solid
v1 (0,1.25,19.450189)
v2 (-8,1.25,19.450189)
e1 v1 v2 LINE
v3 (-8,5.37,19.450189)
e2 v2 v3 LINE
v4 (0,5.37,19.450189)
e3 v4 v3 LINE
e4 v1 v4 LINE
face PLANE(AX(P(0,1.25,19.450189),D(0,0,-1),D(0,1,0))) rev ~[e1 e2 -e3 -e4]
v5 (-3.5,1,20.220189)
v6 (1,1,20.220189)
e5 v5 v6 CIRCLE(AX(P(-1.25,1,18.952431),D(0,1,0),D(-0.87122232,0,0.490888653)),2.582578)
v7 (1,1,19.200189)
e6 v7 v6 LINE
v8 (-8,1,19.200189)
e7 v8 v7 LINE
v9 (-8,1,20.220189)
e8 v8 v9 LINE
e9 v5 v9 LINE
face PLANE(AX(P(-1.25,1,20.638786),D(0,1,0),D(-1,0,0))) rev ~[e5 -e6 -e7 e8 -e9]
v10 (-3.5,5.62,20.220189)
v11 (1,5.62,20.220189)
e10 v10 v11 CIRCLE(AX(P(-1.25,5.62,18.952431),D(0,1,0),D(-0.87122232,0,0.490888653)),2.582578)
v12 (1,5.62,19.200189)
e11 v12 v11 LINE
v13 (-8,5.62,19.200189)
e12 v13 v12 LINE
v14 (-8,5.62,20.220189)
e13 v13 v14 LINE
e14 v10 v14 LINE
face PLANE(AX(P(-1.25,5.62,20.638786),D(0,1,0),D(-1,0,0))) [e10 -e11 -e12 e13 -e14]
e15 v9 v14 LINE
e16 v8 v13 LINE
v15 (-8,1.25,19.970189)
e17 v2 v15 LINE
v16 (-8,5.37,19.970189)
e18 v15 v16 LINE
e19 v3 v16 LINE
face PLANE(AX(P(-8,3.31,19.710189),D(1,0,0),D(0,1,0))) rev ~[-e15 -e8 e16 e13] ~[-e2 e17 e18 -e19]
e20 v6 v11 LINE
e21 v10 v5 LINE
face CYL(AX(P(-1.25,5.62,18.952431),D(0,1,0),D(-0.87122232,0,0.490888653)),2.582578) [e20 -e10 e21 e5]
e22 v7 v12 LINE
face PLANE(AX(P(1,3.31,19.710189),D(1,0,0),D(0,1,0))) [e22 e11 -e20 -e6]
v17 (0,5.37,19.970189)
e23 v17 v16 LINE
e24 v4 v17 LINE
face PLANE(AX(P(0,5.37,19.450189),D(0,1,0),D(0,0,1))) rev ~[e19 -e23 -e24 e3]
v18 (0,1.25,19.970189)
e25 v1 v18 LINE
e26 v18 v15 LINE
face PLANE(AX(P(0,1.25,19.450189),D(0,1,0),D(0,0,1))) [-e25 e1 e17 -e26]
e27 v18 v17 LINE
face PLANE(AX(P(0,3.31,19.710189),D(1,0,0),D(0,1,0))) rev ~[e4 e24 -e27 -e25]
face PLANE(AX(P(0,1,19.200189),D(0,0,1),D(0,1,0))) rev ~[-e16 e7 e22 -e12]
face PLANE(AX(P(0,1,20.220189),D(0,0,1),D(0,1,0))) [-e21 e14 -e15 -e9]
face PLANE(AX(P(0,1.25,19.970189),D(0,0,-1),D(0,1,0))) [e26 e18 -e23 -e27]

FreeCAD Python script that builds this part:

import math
import FreeCAD as App
import Part
import Sketcher

V = App.Vector

doc = App.newDocument("Part")
body = doc.addObject("PartDesign::Body", "Body")

sketch1 = doc.addObject("Sketcher::SketchObject", "Sketch")
body.addObject(sketch1)
sketch1.AttachmentSupport = (doc.YZ_Plane, [""])
sketch1.MapMode = "FlatFace"
sketch1.addGeometry([
    Part.LineSegment(V(1, 20.2, 0), V(1, 19.2, 0)),
    Part.LineSegment(V(1, 19.2, 0), V(5.6, 19.2, 0)),
    Part.LineSegment(V(5.6, 19.2, 0), V(5.6, 20.2, 0)),
    Part.LineSegment(V(5.6, 20.2, 0), V(1, 20.2, 0)),
    Part.LineSegment(V(5.4, 19.5, 0), V(1.2, 19.5, 0)),
    Part.LineSegment(V(1.2, 19.5, 0), V(1.2, 20, 0)),
    Part.LineSegment(V(1.2, 20, 0), V(5.4, 20, 0)),
    Part.LineSegment(V(5.4, 20, 0), V(5.4, 19.5, 0)),
], False)
sketch1.addConstraint([
    Sketcher.Constraint("Coincident", 0, 2, 1, 1),
    Sketcher.Constraint("Coincident", 1, 2, 2, 1),
    Sketcher.Constraint("Coincident", 2, 2, 3, 1),
    Sketcher.Constraint("Coincident", 3, 2, 0, 1),
    Sketcher.Constraint("Coincident", 4, 2, 5, 1),
    Sketcher.Constraint("Coincident", 5, 2, 6, 1),
    Sketcher.Constraint("Coincident", 6, 2, 7, 1),
    Sketcher.Constraint("Coincident", 7, 2, 4, 1),
    Sketcher.Constraint("Vertical", 0),
    Sketcher.Constraint("Horizontal", 1),
    Sketcher.Constraint("Vertical", 2),
    Sketcher.Constraint("Horizontal", 3),
    Sketcher.Constraint("Horizontal", 4),
    Sketcher.Constraint("Vertical", 5),
    Sketcher.Constraint("Horizontal", 6),
    Sketcher.Constraint("Vertical", 7),
    Sketcher.Constraint("DistanceX", -1, 1, 0, 2, 1.0),
    Sketcher.Constraint("DistanceX", 1, 1, 1, 2, 4.62),
    Sketcher.Constraint("DistanceX", 4, 2, 4, 1, 4.12),
    Sketcher.Constraint("DistanceY", 0, 2, 0, 1, 1.02),
    Sketcher.Constraint("DistanceY", 5, 1, 5, 2, 0.52),
    Sketcher.Constraint("DistanceX", -1, 1, 4, 2, 1.25),
    Sketcher.Constraint("DistanceY", 0, 2, 4, 2, 0.25),
    Sketcher.Constraint("DistanceY", -1, 1, 0, 2, 19.200189),
])
pad1 = doc.addObject("PartDesign::Pad", "Pad")
body.addObject(pad1)
pad1.Profile = sketch1
pad1.Length = 8
pad1.Reversed = True

sketch2 = doc.addObject("Sketcher::SketchObject", "Sketch001")
body.addObject(sketch2)
sketch2.AttachmentSupport = (doc.YZ_Plane, [""])
sketch2.MapMode = "FlatFace"
sketch2.addGeometry([
    Part.LineSegment(V(1, 20.2, 0), V(1, 19.2, 0)),
    Part.LineSegment(V(1, 19.2, 0), V(5.6, 19.2, 0)),
    Part.LineSegment(V(5.6, 19.2, 0), V(5.6, 20.2, 0)),
    Part.LineSegment(V(5.6, 20.2, 0), V(1, 20.2, 0)),
], False)
sketch2.addConstraint([
    Sketcher.Constraint("Coincident", 0, 2, 1, 1),
    Sketcher.Constraint("Coincident", 1, 2, 2, 1),
    Sketcher.Constraint("Coincident", 2, 2, 3, 1),
    Sketcher.Constraint("Coincident", 3, 2, 0, 1),
    Sketcher.Constraint("Vertical", 0),
    Sketcher.Constraint("Horizontal", 1),
    Sketcher.Constraint("Vertical", 2),
    Sketcher.Constraint("Horizontal", 3),
    Sketcher.Constraint("DistanceX", -1, 1, 0, 2, 1.0),
    Sketcher.Constraint("DistanceX", 1, 1, 1, 2, 4.62),
    Sketcher.Constraint("DistanceY", 0, 2, 0, 1, 1.02),
    Sketcher.Constraint("DistanceY", -1, 1, 0, 2, 19.200189),
])
pad2 = doc.addObject("PartDesign::Pad", "Pad001")
body.addObject(pad2)
pad2.Profile = sketch2
pad2.Length = 1

sketch3 = doc.addObject("Sketcher::SketchObject", "Sketch002")
body.addObject(sketch3)
sketch3.AttachmentSupport = (doc.XZ_Plane, [""])
sketch3.MapMode = "FlatFace"
sketch3.AttachmentOffset = App.Placement(V(0, 0, -5.62), App.Rotation())
sketch3.addGeometry([
    Part.LineSegment(V(1, 20.2, 0), V(-3.5, 20.2, 0)),
    Part.ArcOfCircle(Part.Circle(V(-1.2, 19, 0), V(0, 0, 1), 2.6), math.radians(29), math.radians(151)),
], False)
sketch3.addConstraint([
    Sketcher.Constraint("Coincident", 0, 1, 1, 1),
    Sketcher.Constraint("Coincident", 1, 2, 0, 2),
    Sketcher.Constraint("Horizontal", 0),
    Sketcher.Constraint("DistanceX", 0, 2, 0, 1, 4.5),
    Sketcher.Constraint("DistanceX", -1, 1, 0, 1, 1.0),
    Sketcher.Constraint("Radius", 1, 2.582578),
    Sketcher.Constraint("DistanceY", -1, 1, 1, 3, 18.952431),
])
pad3 = doc.addObject("PartDesign::Pad", "Pad002")
body.addObject(pad3)
pad3.Profile = sketch3
pad3.Length = 4.62

doc.recompute()
